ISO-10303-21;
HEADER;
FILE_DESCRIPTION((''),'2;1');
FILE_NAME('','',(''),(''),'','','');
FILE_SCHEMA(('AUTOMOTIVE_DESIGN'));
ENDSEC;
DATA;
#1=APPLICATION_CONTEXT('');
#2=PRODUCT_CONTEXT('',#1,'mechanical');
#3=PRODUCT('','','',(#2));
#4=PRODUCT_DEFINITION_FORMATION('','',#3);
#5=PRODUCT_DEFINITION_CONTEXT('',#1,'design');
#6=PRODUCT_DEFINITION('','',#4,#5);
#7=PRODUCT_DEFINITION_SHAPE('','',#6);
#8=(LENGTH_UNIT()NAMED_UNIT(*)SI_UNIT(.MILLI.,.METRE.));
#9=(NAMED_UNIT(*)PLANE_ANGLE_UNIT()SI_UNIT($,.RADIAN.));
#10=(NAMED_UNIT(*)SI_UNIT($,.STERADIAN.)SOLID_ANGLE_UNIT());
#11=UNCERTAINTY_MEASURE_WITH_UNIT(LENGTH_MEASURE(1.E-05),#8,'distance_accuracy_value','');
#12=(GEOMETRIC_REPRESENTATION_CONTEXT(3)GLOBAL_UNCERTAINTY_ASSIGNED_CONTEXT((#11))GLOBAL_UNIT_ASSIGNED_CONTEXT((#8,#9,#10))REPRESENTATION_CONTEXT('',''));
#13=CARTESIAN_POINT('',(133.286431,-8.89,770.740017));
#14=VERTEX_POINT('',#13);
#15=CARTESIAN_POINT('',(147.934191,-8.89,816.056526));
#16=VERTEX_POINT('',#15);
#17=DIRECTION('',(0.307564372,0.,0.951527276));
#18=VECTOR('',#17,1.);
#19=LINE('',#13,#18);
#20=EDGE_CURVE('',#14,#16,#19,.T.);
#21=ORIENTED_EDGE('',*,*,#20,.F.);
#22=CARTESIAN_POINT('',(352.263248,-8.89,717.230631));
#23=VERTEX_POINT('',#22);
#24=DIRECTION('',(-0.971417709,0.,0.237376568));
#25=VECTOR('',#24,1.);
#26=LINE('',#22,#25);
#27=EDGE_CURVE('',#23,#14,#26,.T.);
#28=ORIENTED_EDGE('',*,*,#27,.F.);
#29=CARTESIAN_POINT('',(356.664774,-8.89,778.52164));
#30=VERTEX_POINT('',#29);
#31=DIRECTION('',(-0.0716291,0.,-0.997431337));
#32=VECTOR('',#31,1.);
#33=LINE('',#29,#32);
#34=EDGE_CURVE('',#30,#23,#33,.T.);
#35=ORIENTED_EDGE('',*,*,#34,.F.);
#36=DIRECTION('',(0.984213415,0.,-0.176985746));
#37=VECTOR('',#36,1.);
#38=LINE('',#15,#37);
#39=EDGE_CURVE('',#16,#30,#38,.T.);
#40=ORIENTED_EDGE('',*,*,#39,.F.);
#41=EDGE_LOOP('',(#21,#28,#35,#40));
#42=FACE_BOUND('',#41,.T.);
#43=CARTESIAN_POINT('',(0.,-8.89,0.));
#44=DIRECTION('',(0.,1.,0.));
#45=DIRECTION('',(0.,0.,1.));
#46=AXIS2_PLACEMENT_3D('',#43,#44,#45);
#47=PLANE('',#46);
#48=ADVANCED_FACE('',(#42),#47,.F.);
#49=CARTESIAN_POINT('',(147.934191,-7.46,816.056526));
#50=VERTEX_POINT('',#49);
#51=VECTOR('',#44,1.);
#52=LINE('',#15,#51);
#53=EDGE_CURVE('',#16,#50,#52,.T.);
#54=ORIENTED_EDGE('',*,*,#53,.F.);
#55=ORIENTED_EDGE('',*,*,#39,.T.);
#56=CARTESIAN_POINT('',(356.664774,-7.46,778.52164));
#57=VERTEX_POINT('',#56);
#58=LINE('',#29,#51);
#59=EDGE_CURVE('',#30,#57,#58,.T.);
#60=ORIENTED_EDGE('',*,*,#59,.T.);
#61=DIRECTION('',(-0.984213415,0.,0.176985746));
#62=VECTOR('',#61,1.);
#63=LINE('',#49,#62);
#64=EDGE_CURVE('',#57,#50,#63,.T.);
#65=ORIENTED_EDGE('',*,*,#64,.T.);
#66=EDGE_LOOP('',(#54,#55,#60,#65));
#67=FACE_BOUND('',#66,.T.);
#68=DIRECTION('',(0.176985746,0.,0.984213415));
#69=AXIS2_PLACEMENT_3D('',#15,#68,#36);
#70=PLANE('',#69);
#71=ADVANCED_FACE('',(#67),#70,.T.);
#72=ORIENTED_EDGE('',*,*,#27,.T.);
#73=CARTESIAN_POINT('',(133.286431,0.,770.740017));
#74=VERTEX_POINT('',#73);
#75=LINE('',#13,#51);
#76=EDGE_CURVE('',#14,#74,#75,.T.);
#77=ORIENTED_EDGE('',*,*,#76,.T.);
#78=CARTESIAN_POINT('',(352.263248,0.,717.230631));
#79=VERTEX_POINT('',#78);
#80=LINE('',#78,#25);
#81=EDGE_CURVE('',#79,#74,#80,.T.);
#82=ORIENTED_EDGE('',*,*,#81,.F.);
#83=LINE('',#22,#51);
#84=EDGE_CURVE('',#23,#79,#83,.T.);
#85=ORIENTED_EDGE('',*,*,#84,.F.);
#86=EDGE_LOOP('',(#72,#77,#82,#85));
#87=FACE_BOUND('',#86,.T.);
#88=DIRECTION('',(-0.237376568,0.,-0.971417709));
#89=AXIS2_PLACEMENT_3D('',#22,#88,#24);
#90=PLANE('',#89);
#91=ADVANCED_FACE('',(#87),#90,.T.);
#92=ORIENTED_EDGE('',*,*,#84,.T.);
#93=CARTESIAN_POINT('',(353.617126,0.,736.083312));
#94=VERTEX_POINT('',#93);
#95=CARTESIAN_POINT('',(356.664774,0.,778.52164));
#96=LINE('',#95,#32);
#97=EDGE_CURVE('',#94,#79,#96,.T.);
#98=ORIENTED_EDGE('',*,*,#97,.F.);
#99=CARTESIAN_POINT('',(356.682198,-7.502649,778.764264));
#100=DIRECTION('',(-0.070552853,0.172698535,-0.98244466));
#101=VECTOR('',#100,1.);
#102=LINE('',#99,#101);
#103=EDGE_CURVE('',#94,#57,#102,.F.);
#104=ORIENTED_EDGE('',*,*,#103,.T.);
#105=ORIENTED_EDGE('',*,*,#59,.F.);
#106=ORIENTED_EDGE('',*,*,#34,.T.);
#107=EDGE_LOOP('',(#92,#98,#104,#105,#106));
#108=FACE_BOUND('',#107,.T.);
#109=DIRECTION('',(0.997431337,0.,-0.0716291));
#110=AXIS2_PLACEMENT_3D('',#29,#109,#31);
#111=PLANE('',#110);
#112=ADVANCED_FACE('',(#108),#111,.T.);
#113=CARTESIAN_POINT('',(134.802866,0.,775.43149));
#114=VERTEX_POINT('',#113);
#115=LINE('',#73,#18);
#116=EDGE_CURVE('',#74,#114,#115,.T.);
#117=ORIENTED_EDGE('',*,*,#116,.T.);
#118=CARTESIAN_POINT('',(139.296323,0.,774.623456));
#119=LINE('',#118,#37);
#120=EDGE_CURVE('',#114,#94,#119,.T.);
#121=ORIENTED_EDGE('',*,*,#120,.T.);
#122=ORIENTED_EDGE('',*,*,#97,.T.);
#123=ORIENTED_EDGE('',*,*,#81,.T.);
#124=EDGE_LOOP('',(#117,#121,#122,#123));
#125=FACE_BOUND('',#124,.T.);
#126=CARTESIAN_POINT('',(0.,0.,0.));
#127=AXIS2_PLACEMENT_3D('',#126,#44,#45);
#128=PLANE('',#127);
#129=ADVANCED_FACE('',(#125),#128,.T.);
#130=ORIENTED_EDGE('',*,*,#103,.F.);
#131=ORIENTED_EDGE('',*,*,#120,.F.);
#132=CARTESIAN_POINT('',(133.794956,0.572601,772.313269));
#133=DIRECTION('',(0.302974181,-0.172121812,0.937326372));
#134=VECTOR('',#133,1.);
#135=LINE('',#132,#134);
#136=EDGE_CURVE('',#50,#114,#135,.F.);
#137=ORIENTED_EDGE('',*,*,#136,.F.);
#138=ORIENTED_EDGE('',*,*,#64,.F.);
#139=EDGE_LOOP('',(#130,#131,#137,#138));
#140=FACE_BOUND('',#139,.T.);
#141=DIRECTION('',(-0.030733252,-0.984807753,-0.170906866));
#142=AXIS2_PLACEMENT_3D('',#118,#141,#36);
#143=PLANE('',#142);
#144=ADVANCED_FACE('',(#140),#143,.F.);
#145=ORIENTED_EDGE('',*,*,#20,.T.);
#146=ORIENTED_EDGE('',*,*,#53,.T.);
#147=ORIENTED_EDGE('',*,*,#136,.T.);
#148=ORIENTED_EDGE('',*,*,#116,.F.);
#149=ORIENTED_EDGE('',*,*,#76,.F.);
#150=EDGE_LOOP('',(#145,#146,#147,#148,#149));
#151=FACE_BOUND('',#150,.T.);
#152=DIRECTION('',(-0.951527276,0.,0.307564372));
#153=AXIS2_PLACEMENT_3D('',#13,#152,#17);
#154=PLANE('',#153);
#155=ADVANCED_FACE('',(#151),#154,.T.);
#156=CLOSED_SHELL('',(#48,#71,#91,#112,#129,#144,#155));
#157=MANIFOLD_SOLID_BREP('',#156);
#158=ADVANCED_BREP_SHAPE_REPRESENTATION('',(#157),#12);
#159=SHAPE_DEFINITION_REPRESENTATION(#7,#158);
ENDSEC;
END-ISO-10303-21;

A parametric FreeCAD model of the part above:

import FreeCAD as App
import Part
import Sketcher
from FreeCAD import Vector
Q = App.Units.Quantity


def edges_at(feature, points):
    """Names of the edges that pass closest to the given points."""
    edges = feature.Shape.Edges
    near = lambda p: min(range(len(edges)), key=lambda i: edges[i].distToShape(Part.Vertex(*p))[0])
    return sorted({f"Edge{near(p) + 1}" for p in points})

doc = App.newDocument("Part")
body = doc.addObject("PartDesign::Body", "Body")

sketch1 = body.newObject("Sketcher::SketchObject", "Sketch")
sketch1.AttachmentSupport = (doc.getObject("XZ_Plane"), [""])
sketch1.MapMode = "FlatFace"
sketch1.addGeometry(Part.LineSegment(Vector(133.286431, 770.740017, 0), Vector(147.934191, 816.056526, 0)), False)
sketch1.addGeometry(Part.LineSegment(Vector(147.934191, 816.056526, 0), Vector(356.664774, 778.52164, 0)), False)
sketch1.addGeometry(Part.LineSegment(Vector(356.664774, 778.52164, 0), Vector(352.263248, 717.230631, 0)), False)
sketch1.addGeometry(Part.LineSegment(Vector(352.263248, 717.230631, 0), Vector(133.286431, 770.740017, 0)), False)
sketch1.addConstraint(Sketcher.Constraint("Coincident", 0, 2, 1, 1))
sketch1.addConstraint(Sketcher.Constraint("Coincident", 1, 2, 2, 1))
sketch1.addConstraint(Sketcher.Constraint("Coincident", 2, 2, 3, 1))
sketch1.addConstraint(Sketcher.Constraint("Coincident", 3, 2, 0, 1))
sketch1.addConstraint(Sketcher.Constraint("Distance", 1, 212.07858))
sketch1.addConstraint(Sketcher.Constraint("Distance", 2, 61.44885))
sketch1.addConstraint(Sketcher.Constraint("DistanceX", -1, 1, 0, 2, 147.934191))
sketch1.addConstraint(Sketcher.Constraint("DistanceY", -1, 1, 1, 2, 778.52164))
sketch1.addConstraint(Sketcher.Constraint("DistanceX", -1, 1, 2, 2, 352.263248))
sketch1.addConstraint(Sketcher.Constraint("DistanceY", -1, 1, 2, 2, 717.230631))
sketch1.addConstraint(Sketcher.Constraint("DistanceX", -1, 1, 3, 2, 133.286431))
sketch1.addConstraint(Sketcher.Constraint("DistanceY", 3, 2, 0, 2, 45.316508))
pad1 = body.newObject("PartDesign::Pad", "Pad")
pad1.Profile = sketch1
pad1.Length = Q("0.35 in")
doc.recompute()

chamfer = body.newObject("PartDesign::Chamfer", "Chamfer")
chamfer.Base = (pad1, edges_at(pad1, [(252.299, 0, 797.289)]))
chamfer.ChamferType = "Two distances"
chamfer.Size = 7.46
chamfer.Size2 = 42.307762

doc.recompute()
